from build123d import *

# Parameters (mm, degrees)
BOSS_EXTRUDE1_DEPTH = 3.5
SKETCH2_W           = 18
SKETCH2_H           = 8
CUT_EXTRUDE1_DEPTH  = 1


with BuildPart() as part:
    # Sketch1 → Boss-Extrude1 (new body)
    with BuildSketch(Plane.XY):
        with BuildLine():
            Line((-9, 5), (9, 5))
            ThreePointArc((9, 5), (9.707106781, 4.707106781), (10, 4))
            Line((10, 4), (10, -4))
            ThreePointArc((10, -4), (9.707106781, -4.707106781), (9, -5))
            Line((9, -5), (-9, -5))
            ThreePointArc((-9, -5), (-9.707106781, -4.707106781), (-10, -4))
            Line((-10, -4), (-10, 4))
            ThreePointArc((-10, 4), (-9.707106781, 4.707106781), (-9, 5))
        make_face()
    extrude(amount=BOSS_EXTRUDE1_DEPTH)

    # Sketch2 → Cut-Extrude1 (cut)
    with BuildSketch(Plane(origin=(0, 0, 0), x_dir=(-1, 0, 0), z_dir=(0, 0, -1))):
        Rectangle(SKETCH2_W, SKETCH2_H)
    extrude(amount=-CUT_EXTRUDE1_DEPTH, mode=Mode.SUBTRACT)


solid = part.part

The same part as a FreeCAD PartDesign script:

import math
import FreeCAD as App
import Part
import Sketcher

V = App.Vector
Q = App.Units.Quantity

doc = App.newDocument("Part")
params = doc.addObject("Spreadsheet::Sheet", "Params")
for row, (alias, value) in enumerate([
    ("sketch1_radius", "1 mm"),
    ("sketch1_width", "18 mm"),
    ("sketch1_height", "8 mm"),
    ("pad1_length", "3.5 mm"),
    ("sketch2_width", "18 mm"),
    ("sketch2_height", "8 mm"),
    ("pocket1_length", "1 mm"),
], start=1):
    params.set(f"A{row}", alias)
    params.set(f"B{row}", "=" + value)
    params.setAlias(f"B{row}", alias)

body = doc.addObject("PartDesign::Body", "Body")

# Sketch on XY plane
sketch1 = body.newObject("Sketcher::SketchObject", "Sketch")
sketch1.AttachmentSupport = (doc.getObject("XY_Plane"), [""])
sketch1.MapMode = "FlatFace"
sketch1.addGeometry(Part.LineSegment(V(9, 5, 0), V(-9, 5, 0)), False)
sketch1.addGeometry(Part.ArcOfCircle(Part.Circle(V(-9, 4, 0), V(0, 0, 1), 1), math.radians(90), math.radians(180)), False)
sketch1.addGeometry(Part.LineSegment(V(-10, 4, 0), V(-10, -4, 0)), False)
sketch1.addGeometry(Part.ArcOfCircle(Part.Circle(V(-9, -4, 0), V(0, 0, 1), 1), math.radians(-180), math.radians(-90)), False)
sketch1.addGeometry(Part.LineSegment(V(-9, -5, 0), V(9, -5, 0)), False)
sketch1.addGeometry(Part.ArcOfCircle(Part.Circle(V(9, -4, 0), V(0, 0, 1), 1), math.radians(-90), math.radians(0)), False)
sketch1.addGeometry(Part.LineSegment(V(10, -4, 0), V(10, 4, 0)), False)
sketch1.addGeometry(Part.ArcOfCircle(Part.Circle(V(9, 4, 0), V(0, 0, 1), 1), math.radians(0), math.radians(90)), False)
sketch1.addConstraint(Sketcher.Constraint("Tangent", 0, 2, 1, 1))
sketch1.addConstraint(Sketcher.Constraint("Tangent", 1, 2, 2, 1))
sketch1.addConstraint(Sketcher.Constraint("Tangent", 2, 2, 3, 1))
sketch1.addConstraint(Sketcher.Constraint("Tangent", 3, 2, 4, 1))
sketch1.addConstraint(Sketcher.Constraint("Tangent", 4, 2, 5, 1))
sketch1.addConstraint(Sketcher.Constraint("Tangent", 5, 2, 6, 1))
sketch1.addConstraint(Sketcher.Constraint("Tangent", 6, 2, 7, 1))
sketch1.addConstraint(Sketcher.Constraint("Tangent", 7, 2, 0, 1))
sketch1.addConstraint(Sketcher.Constraint("Horizontal", 0))
sketch1.addConstraint(Sketcher.Constraint("Vertical", 2))
sketch1.addConstraint(Sketcher.Constraint("Horizontal", 4))
sketch1.addConstraint(Sketcher.Constraint("Vertical", 6))
sketch1.addConstraint(Sketcher.Constraint("Equal", 1, 3))
sketch1.addConstraint(Sketcher.Constraint("Equal", 3, 5))
sketch1.addConstraint(Sketcher.Constraint("Equal", 5, 7))
sketch1.addConstraint(Sketcher.Constraint("Symmetric", 1, 3, 5, 3, -1, 1))
sketch1.addConstraint(Sketcher.Constraint("Radius", 1, Q("1 mm")))
sketch1.addConstraint(Sketcher.Constraint("DistanceX", 0, 2, 0, 1, Q("18 mm")))
sketch1.addConstraint(Sketcher.Constraint("DistanceY", 2, 2, 2, 1, Q("8 mm")))
sketch1.setExpression("Constraints[16]", "Params.sketch1_radius")
sketch1.setExpression("Constraints[17]", "Params.sketch1_width")
sketch1.setExpression("Constraints[18]", "Params.sketch1_height")
pad1 = body.newObject("PartDesign::Pad", "Pad")
pad1.Profile = sketch1
pad1.setExpression("Length", "Params.pad1_length")

# Sketch on XY plane
sketch2 = body.newObject("Sketcher::SketchObject", "Sketch001")
sketch2.AttachmentSupport = (doc.getObject("XY_Plane"), [""])
sketch2.MapMode = "FlatFace"
sketch2.addGeometry(Part.LineSegment(V(9, 4, 0), V(9, -4, 0)), False)
sketch2.addGeometry(Part.LineSegment(V(9, -4, 0), V(-9, -4, 0)), False)
sketch2.addGeometry(Part.LineSegment(V(-9, -4, 0), V(-9, 4, 0)), False)
sketch2.addGeometry(Part.LineSegment(V(-9, 4, 0), V(9, 4, 0)), False)
sketch2.addConstraint(Sketcher.Constraint("Coincident", 0, 2, 1, 1))
sketch2.addConstraint(Sketcher.Constraint("Coincident", 1, 2, 2, 1))
sketch2.addConstraint(Sketcher.Constraint("Coincident", 2, 2, 3, 1))
sketch2.addConstraint(Sketcher.Constraint("Coincident", 3, 2, 0, 1))
sketch2.addConstraint(Sketcher.Constraint("Vertical", 0))
sketch2.addConstraint(Sketcher.Constraint("Horizontal", 1))
sketch2.addConstraint(Sketcher.Constraint("Vertical", 2))
sketch2.addConstraint(Sketcher.Constraint("Horizontal", 3))
sketch2.addConstraint(Sketcher.Constraint("Symmetric", 0, 2, 2, 2, -1, 1))
sketch2.addConstraint(Sketcher.Constraint("DistanceX", 1, 2, 1, 1, Q("18 mm")))
sketch2.addConstraint(Sketcher.Constraint("DistanceY", 0, 2, 0, 1, Q("8 mm")))
sketch2.setExpression("Constraints[9]", "Params.sketch2_width")
sketch2.setExpression("Constraints[10]", "Params.sketch2_height")
pocket1 = body.newObject("PartDesign::Pocket", "Pocket")
pocket1.Profile = sketch2
pocket1.setExpression("Length", "Params.pocket1_length")
pocket1.Reversed = True

doc.recompute()
